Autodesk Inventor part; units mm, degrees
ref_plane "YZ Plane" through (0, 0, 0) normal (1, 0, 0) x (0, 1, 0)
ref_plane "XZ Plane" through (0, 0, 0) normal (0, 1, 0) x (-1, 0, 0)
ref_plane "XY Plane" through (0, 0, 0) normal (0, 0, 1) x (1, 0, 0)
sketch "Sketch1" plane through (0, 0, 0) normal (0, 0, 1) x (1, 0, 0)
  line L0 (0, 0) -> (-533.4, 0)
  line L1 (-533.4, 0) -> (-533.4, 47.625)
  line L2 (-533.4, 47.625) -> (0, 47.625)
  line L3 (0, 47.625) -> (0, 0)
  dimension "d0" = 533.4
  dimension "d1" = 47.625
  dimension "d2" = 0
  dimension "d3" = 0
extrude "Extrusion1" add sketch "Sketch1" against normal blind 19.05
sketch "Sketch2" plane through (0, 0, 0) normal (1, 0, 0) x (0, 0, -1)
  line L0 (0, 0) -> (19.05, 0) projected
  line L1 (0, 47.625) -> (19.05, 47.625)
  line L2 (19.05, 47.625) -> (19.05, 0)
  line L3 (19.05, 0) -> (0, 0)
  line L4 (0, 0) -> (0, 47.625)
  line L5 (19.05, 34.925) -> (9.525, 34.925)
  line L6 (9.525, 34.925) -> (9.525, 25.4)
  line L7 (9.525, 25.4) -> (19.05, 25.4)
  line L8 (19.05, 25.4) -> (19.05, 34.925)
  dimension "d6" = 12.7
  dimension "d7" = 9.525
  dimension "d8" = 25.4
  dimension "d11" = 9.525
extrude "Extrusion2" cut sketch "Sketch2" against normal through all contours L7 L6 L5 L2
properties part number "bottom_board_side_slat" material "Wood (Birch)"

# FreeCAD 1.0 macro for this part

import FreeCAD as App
import Part
import Sketcher
Q = App.Units.Quantity


def add_polygon(sketch, points):
    """Adds a closed chain of lines whose ends are joined by coincident constraints."""
    first, n = sketch.GeometryCount, len(points)
    for a, b in zip(points, points[1:] + points[:1]):
        sketch.addGeometry(Part.LineSegment(App.Vector(*a, 0), App.Vector(*b, 0)), False)
    for i in range(n):
        sketch.addConstraint(Sketcher.Constraint("Coincident", first + i, 2, first + (i + 1) % n, 1))

doc = App.newDocument("Part")
body = doc.addObject("PartDesign::Body", "Body")

# Sketch on XY plane
sketch1 = body.newObject("Sketcher::SketchObject", "Sketch")
sketch1.AttachmentSupport = (doc.getObject("XY_Plane"), [""])
sketch1.MapMode = "FlatFace"
add_polygon(sketch1, [(-533, 0), (0, 0), (0, 48), (-533, 48)])  # lines 0-3
sketch1.addConstraint([
    Sketcher.Constraint("Horizontal", 0),
    Sketcher.Constraint("Vertical", 1),
    Sketcher.Constraint("Horizontal", 2),
    Sketcher.Constraint("Vertical", 3),
    Sketcher.Constraint("Coincident", 0, 2, -1, 1),
    Sketcher.Constraint("DistanceX", 0, 1, 0, 2, Q("21 in")),
    Sketcher.Constraint("DistanceY", 1, 1, 1, 2, Q("1.875 in")),
])
pad1 = body.newObject("PartDesign::Pad", "Pad")
pad1.Profile = sketch1
pad1.Length = Q("0.75 in")
pad1.Reversed = True

# Sketch on YZ plane
sketch2 = body.newObject("Sketcher::SketchObject", "Sketch001")
sketch2.AttachmentSupport = (doc.getObject("YZ_Plane"), [""])
sketch2.MapMode = "FlatFace"
add_polygon(sketch2, [(25, -10), (25, -19), (35, -19), (35, -10)])  # lines 0-3
sketch2.addConstraint([
    Sketcher.Constraint("Vertical", 0),
    Sketcher.Constraint("Horizontal", 1),
    Sketcher.Constraint("Vertical", 2),
    Sketcher.Constraint("Horizontal", 3),
    Sketcher.Constraint("Equal", 3, 0),
    Sketcher.Constraint("DistanceX", -1, 1, 0, 2, Q("1 in")),
    Sketcher.Constraint("DistanceX", 1, 1, 1, 2, Q("0.375 in")),
    Sketcher.Constraint("DistanceY", 2, 2, -1, 1, Q("0.375 in")),
])
pocket1 = body.newObject("PartDesign::Pocket", "Pocket")
pocket1.Profile = sketch2
pocket1.Type = "ThroughAll"

doc.recompute()
